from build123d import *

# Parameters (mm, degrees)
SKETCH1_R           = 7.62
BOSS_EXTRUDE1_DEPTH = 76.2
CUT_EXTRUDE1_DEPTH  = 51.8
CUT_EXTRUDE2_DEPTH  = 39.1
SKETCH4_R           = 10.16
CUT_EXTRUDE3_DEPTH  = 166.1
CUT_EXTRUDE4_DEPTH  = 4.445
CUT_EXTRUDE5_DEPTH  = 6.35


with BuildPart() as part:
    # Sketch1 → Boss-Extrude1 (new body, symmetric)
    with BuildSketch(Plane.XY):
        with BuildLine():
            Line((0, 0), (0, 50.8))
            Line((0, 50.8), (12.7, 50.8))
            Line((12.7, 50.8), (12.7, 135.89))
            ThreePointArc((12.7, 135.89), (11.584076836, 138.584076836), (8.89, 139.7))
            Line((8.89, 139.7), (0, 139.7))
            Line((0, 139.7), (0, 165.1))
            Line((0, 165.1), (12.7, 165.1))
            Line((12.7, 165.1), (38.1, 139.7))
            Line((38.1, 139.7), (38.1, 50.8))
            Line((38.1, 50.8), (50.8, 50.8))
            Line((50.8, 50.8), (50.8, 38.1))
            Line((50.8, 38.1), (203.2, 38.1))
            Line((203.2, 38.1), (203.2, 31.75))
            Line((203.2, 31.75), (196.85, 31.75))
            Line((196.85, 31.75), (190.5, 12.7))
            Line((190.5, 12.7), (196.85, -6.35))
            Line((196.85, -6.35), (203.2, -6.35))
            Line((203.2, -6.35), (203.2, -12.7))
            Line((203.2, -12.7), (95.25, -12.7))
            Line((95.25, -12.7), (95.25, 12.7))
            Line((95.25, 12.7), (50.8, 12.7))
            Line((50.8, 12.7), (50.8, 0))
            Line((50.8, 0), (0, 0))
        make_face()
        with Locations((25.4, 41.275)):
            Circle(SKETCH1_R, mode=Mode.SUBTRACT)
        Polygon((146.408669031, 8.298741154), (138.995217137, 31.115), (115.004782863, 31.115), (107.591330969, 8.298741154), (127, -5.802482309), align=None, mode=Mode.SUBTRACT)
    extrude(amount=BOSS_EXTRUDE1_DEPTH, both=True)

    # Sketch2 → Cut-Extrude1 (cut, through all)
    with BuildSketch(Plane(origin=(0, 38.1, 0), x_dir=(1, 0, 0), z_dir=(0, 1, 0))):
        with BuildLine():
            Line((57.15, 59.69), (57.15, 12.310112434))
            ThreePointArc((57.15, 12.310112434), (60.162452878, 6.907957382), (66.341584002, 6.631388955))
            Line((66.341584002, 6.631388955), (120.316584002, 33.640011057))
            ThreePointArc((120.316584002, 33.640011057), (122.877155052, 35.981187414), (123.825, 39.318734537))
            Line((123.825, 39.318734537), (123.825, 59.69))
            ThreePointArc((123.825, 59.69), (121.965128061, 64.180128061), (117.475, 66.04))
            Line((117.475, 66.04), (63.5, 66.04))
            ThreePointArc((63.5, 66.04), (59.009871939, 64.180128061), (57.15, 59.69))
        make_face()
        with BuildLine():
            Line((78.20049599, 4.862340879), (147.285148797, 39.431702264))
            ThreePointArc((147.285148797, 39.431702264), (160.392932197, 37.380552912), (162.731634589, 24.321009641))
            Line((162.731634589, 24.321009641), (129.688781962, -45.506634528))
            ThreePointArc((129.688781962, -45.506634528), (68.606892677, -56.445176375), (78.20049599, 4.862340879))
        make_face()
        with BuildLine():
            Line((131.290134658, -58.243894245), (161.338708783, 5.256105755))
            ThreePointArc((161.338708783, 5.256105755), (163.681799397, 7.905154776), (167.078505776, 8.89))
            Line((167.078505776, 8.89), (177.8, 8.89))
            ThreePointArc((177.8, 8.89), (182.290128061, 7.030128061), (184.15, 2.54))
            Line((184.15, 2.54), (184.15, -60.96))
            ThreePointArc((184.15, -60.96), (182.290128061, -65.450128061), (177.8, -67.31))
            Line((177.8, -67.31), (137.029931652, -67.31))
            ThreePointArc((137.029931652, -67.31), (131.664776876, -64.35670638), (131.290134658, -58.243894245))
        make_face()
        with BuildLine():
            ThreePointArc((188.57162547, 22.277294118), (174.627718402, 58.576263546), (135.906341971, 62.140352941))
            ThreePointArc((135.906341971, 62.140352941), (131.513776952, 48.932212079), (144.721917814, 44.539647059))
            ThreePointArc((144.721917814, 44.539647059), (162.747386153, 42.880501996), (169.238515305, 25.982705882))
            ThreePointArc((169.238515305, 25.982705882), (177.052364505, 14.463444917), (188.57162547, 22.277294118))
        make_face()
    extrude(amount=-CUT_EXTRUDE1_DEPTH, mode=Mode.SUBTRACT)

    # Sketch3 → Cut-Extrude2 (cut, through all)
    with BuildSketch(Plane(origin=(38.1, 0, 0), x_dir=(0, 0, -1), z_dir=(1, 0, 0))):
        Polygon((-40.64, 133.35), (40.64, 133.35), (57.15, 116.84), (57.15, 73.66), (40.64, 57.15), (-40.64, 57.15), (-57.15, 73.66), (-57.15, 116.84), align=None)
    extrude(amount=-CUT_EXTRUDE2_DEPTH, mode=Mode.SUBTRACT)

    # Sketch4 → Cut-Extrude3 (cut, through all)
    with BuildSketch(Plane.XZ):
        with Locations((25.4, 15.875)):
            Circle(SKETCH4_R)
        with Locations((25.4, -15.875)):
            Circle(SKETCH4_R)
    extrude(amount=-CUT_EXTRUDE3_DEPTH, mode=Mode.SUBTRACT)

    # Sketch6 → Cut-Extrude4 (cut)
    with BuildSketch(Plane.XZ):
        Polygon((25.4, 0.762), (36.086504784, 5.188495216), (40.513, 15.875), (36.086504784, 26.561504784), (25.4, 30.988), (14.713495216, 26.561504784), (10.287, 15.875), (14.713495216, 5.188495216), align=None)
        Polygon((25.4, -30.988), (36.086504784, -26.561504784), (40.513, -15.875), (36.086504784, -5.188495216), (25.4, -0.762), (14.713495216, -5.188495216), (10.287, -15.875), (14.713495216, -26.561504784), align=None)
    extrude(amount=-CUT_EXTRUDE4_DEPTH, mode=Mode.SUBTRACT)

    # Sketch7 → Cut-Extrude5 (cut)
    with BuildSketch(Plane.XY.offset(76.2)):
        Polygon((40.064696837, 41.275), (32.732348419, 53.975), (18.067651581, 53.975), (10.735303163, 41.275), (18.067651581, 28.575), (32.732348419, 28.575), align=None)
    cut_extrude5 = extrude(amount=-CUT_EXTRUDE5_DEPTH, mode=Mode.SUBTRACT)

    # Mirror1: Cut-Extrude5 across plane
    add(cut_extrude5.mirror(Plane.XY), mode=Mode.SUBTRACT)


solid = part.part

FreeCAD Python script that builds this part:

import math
import FreeCAD as App
import Part
import Sketcher

V = App.Vector
Q = App.Units.Quantity

doc = App.newDocument("Part")
body = doc.addObject("PartDesign::Body", "Body")

sketch1 = body.newObject("Sketcher::SketchObject", "Sketch")
sketch1.AttachmentSupport = (doc.getObject("XY_Plane"), [""])
sketch1.MapMode = "FlatFace"
sketch1.addGeometry(Part.LineSegment(V(0, 50.8, 0), V(0, 0, 0)), False)
sketch1.addGeometry(Part.LineSegment(V(0, 0, 0), V(50.8, 0, 0)), False)
sketch1.addGeometry(Part.LineSegment(V(50.8, 0, 0), V(50.8, 12.7, 0)), False)
sketch1.addGeometry(Part.LineSegment(V(50.8, 12.7, 0), V(95.25, 12.7, 0)), False)
sketch1.addGeometry(Part.LineSegment(V(95.25, 12.7, 0), V(95.25, -12.7, 0)), False)
sketch1.addGeometry(Part.LineSegment(V(95.25, -12.7, 0), V(203.2, -12.7, 0)), False)
sketch1.addGeometry(Part.LineSegment(V(203.2, -12.7, 0), V(203.2, -6.35, 0)), False)
sketch1.addGeometry(Part.LineSegment(V(203.2, -6.35, 0), V(196.85, -6.35, 0)), False)
sketch1.addGeometry(Part.LineSegment(V(196.85, -6.35, 0), V(190.5, 12.7, 0)), False)
sketch1.addGeometry(Part.LineSegment(V(190.5, 12.7, 0), V(196.85, 31.75, 0)), False)
sketch1.addGeometry(Part.LineSegment(V(196.85, 31.75, 0), V(203.2, 31.75, 0)), False)
sketch1.addGeometry(Part.LineSegment(V(203.2, 31.75, 0), V(203.2, 38.1, 0)), False)
sketch1.addGeometry(Part.LineSegment(V(203.2, 38.1, 0), V(50.8, 38.1, 0)), False)
sketch1.addGeometry(Part.LineSegment(V(50.8, 38.1, 0), V(50.8, 50.8, 0)), False)
sketch1.addGeometry(Part.LineSegment(V(50.8, 50.8, 0), V(38.1, 50.8, 0)), False)
sketch1.addGeometry(Part.LineSegment(V(38.1, 50.8, 0), V(38.1, 139.7, 0)), False)
sketch1.addGeometry(Part.LineSegment(V(38.1, 139.7, 0), V(12.7, 165.1, 0)), False)
sketch1.addGeometry(Part.LineSegment(V(12.7, 165.1, 0), V(0, 165.1, 0)), False)
sketch1.addGeometry(Part.LineSegment(V(0, 165.1, 0), V(0, 139.7, 0)), False)
sketch1.addGeometry(Part.LineSegment(V(0, 139.7, 0), V(8.89, 139.7, 0)), False)
sketch1.addGeometry(Part.ArcOfCircle(Part.Circle(V(8.89, 135.89, 0), V(0, 0, 1), 3.81), math.radians(0), math.radians(90)), False)
sketch1.addGeometry(Part.LineSegment(V(12.7, 135.89, 0), V(12.7, 50.8, 0)), False)
sketch1.addGeometry(Part.LineSegment(V(12.7, 50.8, 0), V(0, 50.8, 0)), False)
sketch1.addGeometry(Part.LineSegment(V(146.408669, 8.298741, 0), V(127, -5.802482, 0)), False)
sketch1.addGeometry(Part.LineSegment(V(127, -5.802482, 0), V(107.591331, 8.298741, 0)), False)
sketch1.addGeometry(Part.LineSegment(V(107.591331, 8.298741, 0), V(115.004783, 31.115, 0)), False)
sketch1.addGeometry(Part.LineSegment(V(115.004783, 31.115, 0), V(138.995217, 31.115, 0)), False)
sketch1.addGeometry(Part.LineSegment(V(138.995217, 31.115, 0), V(146.408669, 8.298741, 0)), False)
sketch1.addGeometry(Part.Circle(V(25.4, 41.275, 0), V(0, 0, 1), 7.62), False)
sketch1.addConstraint(Sketcher.Constraint("Coincident", 0, 2, 1, 1))
sketch1.addConstraint(Sketcher.Constraint("Coincident", 1, 2, 2, 1))
sketch1.addConstraint(Sketcher.Constraint("Coincident", 2, 2, 3, 1))
sketch1.addConstraint(Sketcher.Constraint("Coincident", 3, 2, 4, 1))
sketch1.addConstraint(Sketcher.Constraint("Coincident", 4, 2, 5, 1))
sketch1.addConstraint(Sketcher.Constraint("Coincident", 5, 2, 6, 1))
sketch1.addConstraint(Sketcher.Constraint("Coincident", 6, 2, 7, 1))
sketch1.addConstraint(Sketcher.Constraint("Coincident", 7, 2, 8, 1))
sketch1.addConstraint(Sketcher.Constraint("Coincident", 8, 2, 9, 1))
sketch1.addConstraint(Sketcher.Constraint("Coincident", 9, 2, 10, 1))
sketch1.addConstraint(Sketcher.Constraint("Coincident", 10, 2, 11, 1))
sketch1.addConstraint(Sketcher.Constraint("Coincident", 11, 2, 12, 1))
sketch1.addConstraint(Sketcher.Constraint("Coincident", 12, 2, 13, 1))
sketch1.addConstraint(Sketcher.Constraint("Coincident", 13, 2, 14, 1))
sketch1.addConstraint(Sketcher.Constraint("Coincident", 14, 2, 15, 1))
sketch1.addConstraint(Sketcher.Constraint("Coincident", 15, 2, 16, 1))
sketch1.addConstraint(Sketcher.Constraint("Coincident", 16, 2, 17, 1))
sketch1.addConstraint(Sketcher.Constraint("Coincident", 17, 2, 18, 1))
sketch1.addConstraint(Sketcher.Constraint("Coincident", 18, 2, 19, 1))
sketch1.addConstraint(Sketcher.Constraint("Tangent", 19, 2, 20, 2))
sketch1.addConstraint(Sketcher.Constraint("Tangent", 20, 1, 21, 1))
sketch1.addConstraint(Sketcher.Constraint("Coincident", 21, 2, 22, 1))
sketch1.addConstraint(Sketcher.Constraint("Coincident", 22, 2, 0, 1))
sketch1.addConstraint(Sketcher.Constraint("Coincident", 23, 2, 24, 1))
sketch1.addConstraint(Sketcher.Constraint("Coincident", 24, 2, 25, 1))
sketch1.addConstraint(Sketcher.Constraint("Coincident", 25, 2, 26, 1))
sketch1.addConstraint(Sketcher.Constraint("Coincident", 26, 2, 27, 1))
sketch1.addConstraint(Sketcher.Constraint("Coincident", 27, 2, 23, 1))
sketch1.addConstraint(Sketcher.Constraint("Vertical", 0))
sketch1.addConstraint(Sketcher.Constraint("Horizontal", 1))
sketch1.addConstraint(Sketcher.Constraint("Vertical", 2))
sketch1.addConstraint(Sketcher.Constraint("Horizontal", 3))
sketch1.addConstraint(Sketcher.Constraint("Vertical", 4))
sketch1.addConstraint(Sketcher.Constraint("Horizontal", 5))
sketch1.addConstraint(Sketcher.Constraint("Vertical", 6))
sketch1.addConstraint(Sketcher.Constraint("Horizontal", 7))
sketch1.addConstraint(Sketcher.Constraint("Horizontal", 10))
sketch1.addConstraint(Sketcher.Constraint("Vertical", 11))
sketch1.addConstraint(Sketcher.Constraint("Horizontal", 12))
sketch1.addConstraint(Sketcher.Constraint("Vertical", 13))
sketch1.addConstraint(Sketcher.Constraint("Horizontal", 14))
sketch1.addConstraint(Sketcher.Constraint("Vertical", 15))
sketch1.addConstraint(Sketcher.Constraint("Horizontal", 17))
sketch1.addConstraint(Sketcher.Constraint("Vertical", 18))
sketch1.addConstraint(Sketcher.Constraint("Horizontal", 19))
sketch1.addConstraint(Sketcher.Constraint("Vertical", 21))
sketch1.addConstraint(Sketcher.Constraint("Horizontal", 22))
sketch1.addConstraint(Sketcher.Constraint("Horizontal", 26))
sketch1.addConstraint(Sketcher.Constraint("Coincident", 0, 2, -1, 1))
sketch1.addConstraint(Sketcher.Constraint("PointOnObject", 17, 2, -2))
sketch1.addConstraint(Sketcher.Constraint("Horizontal", 3, 2, 8, 2))
sketch1.addConstraint(Sketcher.Constraint("Horizontal", 15, 2, 18, 2))
sketch1.addConstraint(Sketcher.Constraint("Horizontal", 14, 2, 21, 2))
sketch1.addConstraint(Sketcher.Constraint("Horizontal", 24, 2, 27, 2))
sketch1.addConstraint(Sketcher.Constraint("Vertical", 7, 2, 9, 2))
sketch1.addConstraint(Sketcher.Constraint("Vertical", 6, 2, 10, 2))
sketch1.addConstraint(Sketcher.Constraint("Vertical", 2, 2, 12, 2))
sketch1.addConstraint(Sketcher.Constraint("Vertical", 16, 2, 20, 1))
sketch1.addConstraint(Sketcher.Constraint("Equal", 14, 17))
sketch1.addConstraint(Sketcher.Constraint("Equal", 1, 0))
sketch1.addConstraint(Sketcher.Constraint("Equal", 22, 2))
sketch1.addConstraint(Sketcher.Constraint("Equal", 10, 6))
sketch1.addConstraint(Sketcher.Constraint("Equal", 6, 11))
sketch1.addConstraint(Sketcher.Constraint("Equal", 2, 13))
sketch1.addConstraint(Sketcher.Constraint("Equal", 4, 18))
sketch1.addConstraint(Sketcher.Constraint("Equal", 8, 9))
sketch1.addConstraint(Sketcher.Constraint("Equal", 23, 24))
sketch1.addConstraint(Sketcher.Constraint("Equal", 24, 25))
sketch1.addConstraint(Sketcher.Constraint("Equal", 25, 27))
sketch1.addConstraint(Sketcher.Constraint("Diameter", 28, Q("0.6 in")))
sketch1.addConstraint(Sketcher.Constraint("DistanceX", 1, 1, 1, 2, Q("2 in")))
sketch1.addConstraint(Sketcher.Constraint("DistanceX", 12, 2, 12, 1, Q("6 in")))
sketch1.addConstraint(Sketcher.Constraint("DistanceY", 4, 2, 4, 1, Q("1 in")))
sketch1.addConstraint(Sketcher.Constraint("Radius", 20, Q("0.15 in")))
sketch1.addConstraint(Sketcher.Constraint("DistanceY", 15, 1, 15, 2, Q("3.5 in")))
sketch1.addConstraint(Sketcher.Constraint("DistanceX", -1, 1, 28, 3, Q("1 in")))
sketch1.addConstraint(Sketcher.Constraint("DistanceX", -1, 1, 23, 2, Q("5 in")))
sketch1.addConstraint(Sketcher.Constraint("Angle", 23, Q("-144 deg")))
sketch1.addConstraint(Sketcher.Constraint("Angle", 25, Q("72 deg")))
sketch1.addConstraint(Sketcher.Constraint("DistanceX", 4, 2, 7, 2, Q("4 in")))
sketch1.addConstraint(Sketcher.Constraint("DistanceX", 3, 1, 3, 2, Q("1.75 in")))
sketch1.addConstraint(Sketcher.Constraint("DistanceX", -1, 1, 8, 2, Q("7.5 in")))
sketch1.addConstraint(Sketcher.Constraint("DistanceY", -1, 1, 28, 3, Q("1.625 in")))
sketch1.addConstraint(Sketcher.Constraint("DistanceY", -1, 1, 25, 2, Q("1.225 in")))
sketch1.addConstraint(Sketcher.Constraint("DistanceX", 26, 1, 26, 2, 23.990434))
pad1 = body.newObject("PartDesign::Pad", "Pad")
pad1.Profile = sketch1
pad1.Length = Q("6 in")
pad1.Midplane = True

sketch2 = body.newObject("Sketcher::SketchObject", "Sketch001")
sketch2.AttachmentSupport = (doc.getObject("XZ_Plane"), [""])
sketch2.MapMode = "FlatFace"
sketch2.AttachmentOffset = App.Placement(V(0, 0, -1.5 * 25.4), App.Rotation())
sketch2.addGeometry(Part.LineSegment(V(57.15, -59.69, 0), V(57.15, -12.310112, 0)), False)
sketch2.addGeometry(Part.ArcOfCircle(Part.Circle(V(63.5, -12.310112, 0), V(0, 0, 1), 6.35), math.radians(63.417014), math.radians(180)), False)
sketch2.addGeometry(Part.LineSegment(V(66.341584, -6.631389, 0), V(120.316584, -33.640011, 0)), False)
sketch2.addGeometry(Part.ArcOfCircle(Part.Circle(V(117.475, -39.318735, 0), V(0, 0, 1), 6.35), math.radians(0), math.radians(63.417014)), False)
sketch2.addGeometry(Part.LineSegment(V(123.825, -39.318735, 0), V(123.825, -59.69, 0)), False)
sketch2.addGeometry(Part.ArcOfCircle(Part.Circle(V(117.475, -59.69, 0), V(0, 0, 1), 6.35), math.radians(-90), math.radians(0)), False)
sketch2.addGeometry(Part.LineSegment(V(117.475, -66.04, 0), V(63.5, -66.04, 0)), False)
sketch2.addGeometry(Part.ArcOfCircle(Part.Circle(V(63.5, -59.69, 0), V(0, 0, 1), 6.35), math.radians(180), math.radians(270)), False)
sketch2.addGeometry(Part.LineSegment(V(147.285149, -39.431702, 0), V(78.200496, -4.862341, 0)), False)
sketch2.addGeometry(Part.ArcOfCircle(Part.Circle(V(95.25, 29.21, 0), V(0, 0, 1), 38.1), math.radians(25.323788), math.radians(243.417014)), False)
sketch2.addGeometry(Part.LineSegment(V(129.688782, 45.506635, 0), V(162.731635, -24.32101, 0)), False)
sketch2.addGeometry(Part.ArcOfCircle(Part.Circle(V(152.4, -29.21, 0), V(0, 0, 1), 11.43), math.radians(-116.582986), math.radians(25.323788)), False)
sketch2.addGeometry(Part.LineSegment(V(161.338709, -5.256106, 0), V(131.290135, 58.243894, 0)), False)
sketch2.addGeometry(Part.ArcOfCircle(Part.Circle(V(137.029932, 60.96, 0), V(0, 0, 1), 6.35), math.radians(90), math.radians(205.323788)), False)
sketch2.addGeometry(Part.LineSegment(V(137.029932, 67.31, 0), V(177.8, 67.31, 0)), False)
sketch2.addGeometry(Part.ArcOfCircle(Part.Circle(V(177.8, 60.96, 0), V(0, 0, 1), 6.35), math.radians(0), math.radians(90)), False)
sketch2.addGeometry(Part.LineSegment(V(184.15, 60.96, 0), V(184.15, -2.54, 0)), False)
sketch2.addGeometry(Part.ArcOfCircle(Part.Circle(V(177.8, -2.54, 0), V(0, 0, 1), 6.35), math.radians(-90), math.radians(0)), False)
sketch2.addGeometry(Part.LineSegment(V(177.8, -8.89, 0), V(167.078506, -8.89, 0)), False)
sketch2.addGeometry(Part.ArcOfCircle(Part.Circle(V(167.078506, -2.54, 0), V(0, 0, 1), 6.35), math.radians(-154.676212), math.radians(-90)), False)
sketch2.addGeometry(Part.ArcOfCircle(Part.Circle(V(152.4, -29.21, 0), V(0, 0, 1), 36.83), math.radians(-116.604682), math.radians(10.849816)), False)
sketch2.addGeometry(Part.ArcOfCircle(Part.Circle(V(140.31413, -53.34, 0), V(0, 0, 1), 9.8425), math.radians(63.395318), math.radians(243.395318)), False)
sketch2.addGeometry(Part.ArcOfCircle(Part.Circle(V(152.4, -29.21, 0), V(0, 0, 1), 17.145), math.radians(-116.604682), math.radians(10.849816)), False)
sketch2.addGeometry(Part.ArcOfCircle(Part.Circle(V(178.90507, -24.13, 0), V(0, 0, 1), 9.8425), math.radians(10.849816), math.radians(190.849816)), False)
sketch2.addConstraint(Sketcher.Constraint("Tangent", 0, 2, 1, 2))
sketch2.addConstraint(Sketcher.Constraint("Tangent", 1, 1, 2, 1))
sketch2.addConstraint(Sketcher.Constraint("Tangent", 2, 2, 3, 2))
sketch2.addConstraint(Sketcher.Constraint("Tangent", 3, 1, 4, 1))
sketch2.addConstraint(Sketcher.Constraint("Tangent", 4, 2, 5, 2))
sketch2.addConstraint(Sketcher.Constraint("Tangent", 5, 1, 6, 1))
sketch2.addConstraint(Sketcher.Constraint("Tangent", 6, 2, 7, 2))
sketch2.addConstraint(Sketcher.Constraint("Tangent", 7, 1, 0, 1))
sketch2.addConstraint(Sketcher.Constraint("Tangent", 8, 2, 9, 2))
sketch2.addConstraint(Sketcher.Constraint("Tangent", 9, 1, 10, 1))
sketch2.addConstraint(Sketcher.Constraint("Tangent", 10, 2, 11, 2))
sketch2.addConstraint(Sketcher.Constraint("Tangent", 11, 1, 8, 1))
sketch2.addConstraint(Sketcher.Constraint("Tangent", 12, 2, 13, 2))
sketch2.addConstraint(Sketcher.Constraint("Tangent", 13, 1, 14, 1))
sketch2.addConstraint(Sketcher.Constraint("Tangent", 14, 2, 15, 2))
sketch2.addConstraint(Sketcher.Constraint("Tangent", 15, 1, 16, 1))
sketch2.addConstraint(Sketcher.Constraint("Tangent", 16, 2, 17, 2))
sketch2.addConstraint(Sketcher.Constraint("Tangent", 17, 1, 18, 1))
sketch2.addConstraint(Sketcher.Constraint("Tangent", 18, 2, 19, 2))
sketch2.addConstraint(Sketcher.Constraint("Tangent", 19, 1, 12, 1))
sketch2.addConstraint(Sketcher.Constraint("Tangent", 20, 1, 21, 2))
sketch2.addConstraint(Sketcher.Constraint("Tangent", 21, 1, 22, 1))
sketch2.addConstraint(Sketcher.Constraint("Tangent", 22, 2, 23, 2))
sketch2.addConstraint(Sketcher.Constraint("Tangent", 23, 1, 20, 2))
sketch2.addConstraint(Sketcher.Constraint("Vertical", 0))
sketch2.addConstraint(Sketcher.Constraint("Vertical", 4))
sketch2.addConstraint(Sketcher.Constraint("Horizontal", 6))
sketch2.addConstraint(Sketcher.Constraint("Horizontal", 14))
sketch2.addConstraint(Sketcher.Constraint("Vertical", 16))
sketch2.addConstraint(Sketcher.Constraint("Horizontal", 18))
sketch2.addConstraint(Sketcher.Constraint("Coincident", 20, 3, 11, 3))
sketch2.addConstraint(Sketcher.Constraint("Coincident", 22, 3, 11, 3))
sketch2.addConstraint(Sketcher.Constraint("Equal", 1, 3))
sketch2.addConstraint(Sketcher.Constraint("Equal", 3, 5))
sketch2.addConstraint(Sketcher.Constraint("Equal", 5, 7))
sketch2.addConstraint(Sketcher.Constraint("Equal", 7, 13))
sketch2.addConstraint(Sketcher.Constraint("Equal", 13, 15))
sketch2.addConstraint(Sketcher.Constraint("Equal", 15, 17))
sketch2.addConstraint(Sketcher.Constraint("Equal", 17, 19))
sketch2.addConstraint(Sketcher.Constraint("Parallel", 2, 8))
sketch2.addConstraint(Sketcher.Constraint("Parallel", 10, 12))
sketch2.addConstraint(Sketcher.Constraint("Radius", 9, Q("1.5 in")))
sketch2.addConstraint(Sketcher.Constraint("Radius", 1, Q("0.25 in")))
sketch2.addConstraint(Sketcher.Constraint("Radius", 11, Q("0.45 in")))
sketch2.addConstraint(Sketcher.Constraint("Radius", 20, Q("1.45 in")))
sketch2.addConstraint(Sketcher.Constraint("DistanceY", 16, 2, 16, 1, Q("2.5 in")))
sketch2.addConstraint(Sketcher.Constraint("DistanceX", -1, 1, 11, 3, Q("6 in")))
sketch2.addConstraint(Sketcher.Constraint("DistanceX", -1, 1, 15, 3, Q("7 in")))
sketch2.addConstraint(Sketcher.Constraint("Radius", 22, Q("0.675 in")))
sketch2.addConstraint(Sketcher.Constraint("DistanceY", 21, 3, 19, 3, Q("2 in")))
sketch2.addConstraint(Sketcher.Constraint("DistanceX", -1, 1, 1, 3, Q("2.5 in")))
sketch2.addConstraint(Sketcher.Constraint("DistanceY", -1, 1, 13, 3, Q("2.4 in")))
sketch2.addConstraint(Sketcher.Constraint("DistanceY", 5, 1, -1, 1, Q("2.6 in")))
sketch2.addConstraint(Sketcher.Constraint("DistanceY", 5, 3, 9, 3, Q("3.5 in")))
sketch2.addConstraint(Sketcher.Constraint("DistanceY", 5, 3, 11, 3, Q("1.2 in")))
sketch2.addConstraint(Sketcher.Constraint("DistanceY", 11, 3, 23, 3, Q("0.2 in")))
sketch2.addConstraint(Sketcher.Constraint("DistanceX", 0, 2, 9, 3, Q("1.5 in")))
sketch2.addConstraint(Sketcher.Constraint("DistanceX", 6, 2, 6, 1, Q("2.125 in")))
sketch2.addConstraint(Sketcher.Constraint("DistanceX", 14, 1, 14, 2, 40.770068))
sketch2.addConstraint(Sketcher.Constraint("DistanceY", 0, 1, 0, 2, 47.379888))
pocket1 = body.newObject("PartDesign::Pocket", "Pocket")
pocket1.Profile = sketch2
pocket1.Type = "ThroughAll"
pocket1.Reversed = True

sketch3 = body.newObject("Sketcher::SketchObject", "Sketch002")
sketch3.AttachmentSupport = (doc.getObject("YZ_Plane"), [""])
sketch3.MapMode = "FlatFace"
sketch3.AttachmentOffset = App.Placement(V(0, 0, 1.5 * 25.4), App.Rotation())
sketch3.addGeometry(Part.LineSegment(V(133.35, -40.64, 0), V(133.35, 40.64, 0)), False)
sketch3.addGeometry(Part.LineSegment(V(133.35, 40.64, 0), V(116.84, 57.15, 0)), False)
sketch3.addGeometry(Part.LineSegment(V(116.84, 57.15, 0), V(73.66, 57.15, 0)), False)
sketch3.addGeometry(Part.LineSegment(V(73.66, 57.15, 0), V(57.15, 40.64, 0)), False)
sketch3.addGeometry(Part.LineSegment(V(57.15, 40.64, 0), V(57.15, -40.64, 0)), False)
sketch3.addGeometry(Part.LineSegment(V(57.15, -40.64, 0), V(73.66, -57.15, 0)), False)
sketch3.addGeometry(Part.LineSegment(V(73.66, -57.15, 0), V(116.84, -57.15, 0)), False)
sketch3.addGeometry(Part.LineSegment(V(116.84, -57.15, 0), V(133.35, -40.64, 0)), False)
sketch3.addConstraint(Sketcher.Constraint("Coincident", 0, 2, 1, 1))
sketch3.addConstraint(Sketcher.Constraint("Coincident", 1, 2, 2, 1))
sketch3.addConstraint(Sketcher.Constraint("Coincident", 2, 2, 3, 1))
sketch3.addConstraint(Sketcher.Constraint("Coincident", 3, 2, 4, 1))
sketch3.addConstraint(Sketcher.Constraint("Coincident", 4, 2, 5, 1))
sketch3.addConstraint(Sketcher.Constraint("Coincident", 5, 2, 6, 1))
sketch3.addConstraint(Sketcher.Constraint("Coincident", 6, 2, 7, 1))
sketch3.addConstraint(Sketcher.Constraint("Coincident", 7, 2, 0, 1))
sketch3.addConstraint(Sketcher.Constraint("Vertical", 0))
sketch3.addConstraint(Sketcher.Constraint("Horizontal", 2))
sketch3.addConstraint(Sketcher.Constraint("Vertical", 4))
sketch3.addConstraint(Sketcher.Constraint("Horizontal", 6))
sketch3.addConstraint(Sketcher.Constraint("Symmetric", 2, 2, 5, 2, -1))
sketch3.addConstraint(Sketcher.Constraint("Perpendicular", 1, 3))
sketch3.addConstraint(Sketcher.Constraint("Perpendicular", 3, 5))
sketch3.addConstraint(Sketcher.Constraint("Perpendicular", 5, 7))
sketch3.addConstraint(Sketcher.Constraint("Horizontal", 0, 2, 3, 2))
sketch3.addConstraint(Sketcher.Constraint("Horizontal", 4, 2, 7, 2))
sketch3.addConstraint(Sketcher.Constraint("Vertical", 1, 2, 6, 2))
sketch3.addConstraint(Sketcher.Constraint("DistanceX", 2, 2, 2, 1, Q("1.7 in")))
sketch3.addConstraint(Sketcher.Constraint("DistanceY", 0, 1, 0, 2, Q("3.2 in")))
sketch3.addConstraint(Sketcher.Constraint("DistanceX", 3, 2, 0, 2, Q("3 in")))
sketch3.addConstraint(Sketcher.Constraint("DistanceX", -1, 1, 1, 2, Q("4.6 in")))
pocket2 = body.newObject("PartDesign::Pocket", "Pocket001")
pocket2.Profile = sketch3
pocket2.Type = "ThroughAll"

sketch4 = body.newObject("Sketcher::SketchObject", "Sketch003")
sketch4.AttachmentSupport = (doc.getObject("XZ_Plane"), [""])
sketch4.MapMode = "FlatFace"
sketch4.addGeometry(Part.Circle(V(25.4, 15.875, 0), V(0, 0, 1), 10.16), False)
sketch4.addGeometry(Part.Circle(V(25.4, -15.875, 0), V(0, 0, 1), 10.16), False)
sketch4.addConstraint(Sketcher.Constraint("Equal", 0, 1))
sketch4.addConstraint(Sketcher.Constraint("Symmetric", 0, 3, 1, 3, -1))
sketch4.addConstraint(Sketcher.Constraint("Diameter", 0, Q("0.8 in")))
sketch4.addConstraint(Sketcher.Constraint("DistanceX", -1, 1, 0, 3, Q("1 in")))
sketch4.addConstraint(Sketcher.Constraint("DistanceY", 1, 3, 0, 3, Q("1.25 in")))
pocket3 = body.newObject("PartDesign::Pocket", "Pocket002")
pocket3.Profile = sketch4
pocket3.Type = "ThroughAll"

sketch5 = body.newObject("Sketcher::SketchObject", "Sketch004")
sketch5.AttachmentSupport = (doc.getObject("XZ_Plane"), [""])
sketch5.MapMode = "FlatFace"
sketch5.addGeometry(Part.LineSegment(V(25.4, 0.762, 0), V(36.086505, 5.188495, 0)), False)
sketch5.addGeometry(Part.LineSegment(V(36.086505, 5.188495, 0), V(40.513, 15.875, 0)), False)
sketch5.addGeometry(Part.LineSegment(V(40.513, 15.875, 0), V(36.086505, 26.561505, 0)), False)
sketch5.addGeometry(Part.LineSegment(V(36.086505, 26.561505, 0), V(25.4, 30.988, 0)), False)
sketch5.addGeometry(Part.LineSegment(V(25.4, 30.988, 0), V(14.713495, 26.561505, 0)), False)
sketch5.addGeometry(Part.LineSegment(V(14.713495, 26.561505, 0), V(10.287, 15.875, 0)), False)
sketch5.addGeometry(Part.LineSegment(V(10.287, 15.875, 0), V(14.713495, 5.188495, 0)), False)
sketch5.addGeometry(Part.LineSegment(V(14.713495, 5.188495, 0), V(25.4, 0.762, 0)), False)
sketch5.addGeometry(Part.LineSegment(V(25.4, -30.988, 0), V(36.086505, -26.561505, 0)), False)
sketch5.addGeometry(Part.LineSegment(V(36.086505, -26.561505, 0), V(40.513, -15.875, 0)), False)
sketch5.addGeometry(Part.LineSegment(V(40.513, -15.875, 0), V(36.086505, -5.188495, 0)), False)
sketch5.addGeometry(Part.LineSegment(V(36.086505, -5.188495, 0), V(25.4, -0.762, 0)), False)
sketch5.addGeometry(Part.LineSegment(V(25.4, -0.762, 0), V(14.713495, -5.188495, 0)), False)
sketch5.addGeometry(Part.LineSegment(V(14.713495, -5.188495, 0), V(10.287, -15.875, 0)), False)
sketch5.addGeometry(Part.LineSegment(V(10.287, -15.875, 0), V(14.713495, -26.561505, 0)), False)
sketch5.addGeometry(Part.LineSegment(V(14.713495, -26.561505, 0), V(25.4, -30.988, 0)), False)
sketch5.addConstraint(Sketcher.Constraint("Coincident", 0, 2, 1, 1))
sketch5.addConstraint(Sketcher.Constraint("Coincident", 1, 2, 2, 1))
sketch5.addConstraint(Sketcher.Constraint("Coincident", 2, 2, 3, 1))
sketch5.addConstraint(Sketcher.Constraint("Coincident", 3, 2, 4, 1))
sketch5.addConstraint(Sketcher.Constraint("Coincident", 4, 2, 5, 1))
sketch5.addConstraint(Sketcher.Constraint("Coincident", 5, 2, 6, 1))
sketch5.addConstraint(Sketcher.Constraint("Coincident", 6, 2, 7, 1))
sketch5.addConstraint(Sketcher.Constraint("Coincident", 7, 2, 0, 1))
sketch5.addConstraint(Sketcher.Constraint("Coincident", 8, 2, 9, 1))
sketch5.addConstraint(Sketcher.Constraint("Coincident", 9, 2, 10, 1))
sketch5.addConstraint(Sketcher.Constraint("Coincident", 10, 2, 11, 1))
sketch5.addConstraint(Sketcher.Constraint("Coincident", 11, 2, 12, 1))
sketch5.addConstraint(Sketcher.Constraint("Coincident", 12, 2, 13, 1))
sketch5.addConstraint(Sketcher.Constraint("Coincident", 13, 2, 14, 1))
sketch5.addConstraint(Sketcher.Constraint("Coincident", 14, 2, 15, 1))
sketch5.addConstraint(Sketcher.Constraint("Coincident", 15, 2, 8, 1))
sketch5.addConstraint(Sketcher.Constraint("Symmetric", 2, 2, 8, 2, -1))
sketch5.addConstraint(Sketcher.Constraint("Symmetric", 1, 2, 9, 2, -1))
sketch5.addConstraint(Sketcher.Constraint("Symmetric", 0, 2, 10, 2, -1))
sketch5.addConstraint(Sketcher.Constraint("Symmetric", 7, 2, 11, 2, -1))
sketch5.addConstraint(Sketcher.Constraint("Symmetric", 6, 2, 12, 2, -1))
sketch5.addConstraint(Sketcher.Constraint("Symmetric", 5, 2, 13, 2, -1))
sketch5.addConstraint(Sketcher.Constraint("Symmetric", 4, 2, 14, 2, -1))
sketch5.addConstraint(Sketcher.Constraint("Symmetric", 3, 2, 15, 2, -1))
sketch5.addConstraint(Sketcher.Constraint("Perpendicular", 0, 2))
sketch5.addConstraint(Sketcher.Constraint("Perpendicular", 1, 3))
sketch5.addConstraint(Sketcher.Constraint("Perpendicular", 2, 4))
sketch5.addConstraint(Sketcher.Constraint("Perpendicular", 3, 5))
sketch5.addConstraint(Sketcher.Constraint("Perpendicular", 4, 6))
sketch5.addConstraint(Sketcher.Constraint("Perpendicular", 5, 7))
sketch5.addConstraint(Sketcher.Constraint("Perpendicular", 6, 8))
sketch5.addConstraint(Sketcher.Constraint("Horizontal", 2, 2, 4, 2))
sketch5.addConstraint(Sketcher.Constraint("Horizontal", 1, 2, 5, 2))
sketch5.addConstraint(Sketcher.Constraint("Horizontal", 0, 2, 6, 2))
sketch5.addConstraint(Sketcher.Constraint("Vertical", 0, 2, 2, 2))
sketch5.addConstraint(Sketcher.Constraint("Equal", 0, 1))
sketch5.addConstraint(Sketcher.Constraint("DistanceX", -1, 1, 3, 2, Q("1 in")))
sketch5.addConstraint(Sketcher.Constraint("Angle", 0, Q("22.5 deg")))
sketch5.addConstraint(Sketcher.Constraint("DistanceY", -1, 1, 3, 2, Q("1.22 in")))
sketch5.addConstraint(Sketcher.Constraint("DistanceY", -1, 1, 7, 2, Q("0.03 in")))
pocket4 = body.newObject("PartDesign::Pocket", "Pocket003")
pocket4.Profile = sketch5
pocket4.Length = Q("0.175 in")

sketch6 = body.newObject("Sketcher::SketchObject", "Sketch005")
sketch6.AttachmentSupport = (doc.getObject("XY_Plane"), [""])
sketch6.MapMode = "FlatFace"
sketch6.AttachmentOffset = App.Placement(V(0, 0, 3 * 25.4), App.Rotation())
sketch6.addGeometry(Part.LineSegment(V(40.064697, 41.275, 0), V(32.732348, 53.975, 0)), False)
sketch6.addGeometry(Part.LineSegment(V(32.732348, 53.975, 0), V(18.067652, 53.975, 0)), False)
sketch6.addGeometry(Part.LineSegment(V(18.067652, 53.975, 0), V(10.735303, 41.275, 0)), False)
sketch6.addGeometry(Part.LineSegment(V(10.735303, 41.275, 0), V(18.067652, 28.575, 0)), False)
sketch6.addGeometry(Part.LineSegment(V(18.067652, 28.575, 0), V(32.732348, 28.575, 0)), False)
sketch6.addGeometry(Part.LineSegment(V(32.732348, 28.575, 0), V(40.064697, 41.275, 0)), False)
sketch6.addConstraint(Sketcher.Constraint("Coincident", 0, 2, 1, 1))
sketch6.addConstraint(Sketcher.Constraint("Coincident", 1, 2, 2, 1))
sketch6.addConstraint(Sketcher.Constraint("Coincident", 2, 2, 3, 1))
sketch6.addConstraint(Sketcher.Constraint("Coincident", 3, 2, 4, 1))
sketch6.addConstraint(Sketcher.Constraint("Coincident", 4, 2, 5, 1))
sketch6.addConstraint(Sketcher.Constraint("Coincident", 5, 2, 0, 1))
sketch6.addConstraint(Sketcher.Constraint("Horizontal", 1))
sketch6.addConstraint(Sketcher.Constraint("Horizontal", 4))
sketch6.addConstraint(Sketcher.Constraint("Parallel", 0, 3))
sketch6.addConstraint(Sketcher.Constraint("Parallel", 2, 5))
sketch6.addConstraint(Sketcher.Constraint("Horizontal", 2, 2, 5, 2))
sketch6.addConstraint(Sketcher.Constraint("Vertical", 1, 2, 3, 2))
sketch6.addConstraint(Sketcher.Constraint("Vertical", 0, 2, 4, 2))
sketch6.addConstraint(Sketcher.Constraint("Angle", 0, Q("120 deg")))
sketch6.addConstraint(Sketcher.Constraint("DistanceY", 3, 2, 1, 2, Q("1 in")))
sketch6.addConstraint(Sketcher.Constraint("DistanceY", -1, 1, 0, 2, Q("2.125 in")))
sketch6.addConstraint(Sketcher.Constraint("DistanceX", 1, 2, 1, 1, 14.664697))
sketch6.addConstraint(Sketcher.Constraint("DistanceX", -1, 1, 0, 2, 32.732348))
pocket5 = body.newObject("PartDesign::Pocket", "Pocket004")
pocket5.Profile = sketch6
pocket5.Length = Q("0.25 in")
doc.recompute()

mirrored = body.newObject("PartDesign::Mirrored", "Mirrored")
mirrored.Originals = [pocket5]
mirrored.MirrorPlane = (doc.getObject("XY_Plane"), [""])
body.Tip = mirrored

doc.recompute()
